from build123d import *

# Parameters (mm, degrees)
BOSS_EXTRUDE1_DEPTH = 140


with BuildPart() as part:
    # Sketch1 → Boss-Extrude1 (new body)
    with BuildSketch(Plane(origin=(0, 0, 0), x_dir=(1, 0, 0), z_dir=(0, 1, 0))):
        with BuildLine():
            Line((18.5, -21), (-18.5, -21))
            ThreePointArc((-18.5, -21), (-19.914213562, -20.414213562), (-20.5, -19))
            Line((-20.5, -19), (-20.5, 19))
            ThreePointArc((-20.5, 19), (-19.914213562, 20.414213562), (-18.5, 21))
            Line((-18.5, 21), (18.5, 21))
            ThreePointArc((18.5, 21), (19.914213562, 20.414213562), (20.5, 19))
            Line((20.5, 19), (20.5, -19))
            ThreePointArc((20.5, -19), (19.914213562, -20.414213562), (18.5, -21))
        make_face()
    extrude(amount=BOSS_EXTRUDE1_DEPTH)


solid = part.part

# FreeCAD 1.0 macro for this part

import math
import FreeCAD as App
import Part
import Sketcher

V = App.Vector

doc = App.newDocument("Part")
params = doc.addObject("Spreadsheet::Sheet", "Params")
for row, (alias, value) in enumerate([
    ("sketch1_radius", "2 mm"),
    ("sketch1_width", "37 mm"),
    ("sketch1_height", "38 mm"),
    ("pad1_length", "140 mm"),
], start=1):
    params.set(f"A{row}", alias)
    params.set(f"B{row}", "=" + value)
    params.setAlias(f"B{row}", alias)

body = doc.addObject("PartDesign::Body", "Body")

# Sketch on XZ plane
sketch1 = doc.addObject("Sketcher::SketchObject", "Sketch")
body.addObject(sketch1)
sketch1.AttachmentSupport = (doc.XZ_Plane, [""])
sketch1.MapMode = "FlatFace"
sketch1.addGeometry([
    Part.LineSegment(V(-18.5, 21, 0), V(18.5, 21, 0)),  # 0
    Part.ArcOfCircle(Part.Circle(V(18.5, 19, 0), V(0, 0, 1), 2), math.radians(0), math.radians(90)),  # 1
    Part.LineSegment(V(20.5, 19, 0), V(20.5, -19, 0)),  # 2
    Part.ArcOfCircle(Part.Circle(V(18.5, -19, 0), V(0, 0, 1), 2), math.radians(-90), math.radians(0)),  # 3
    Part.LineSegment(V(18.5, -21, 0), V(-18.5, -21, 0)),  # 4
    Part.ArcOfCircle(Part.Circle(V(-18.5, -19, 0), V(0, 0, 1), 2), math.radians(-180), math.radians(-90)),  # 5
    Part.LineSegment(V(-20.5, -19, 0), V(-20.5, 19, 0)),  # 6
    Part.ArcOfCircle(Part.Circle(V(-18.5, 19, 0), V(0, 0, 1), 2), math.radians(90), math.radians(180)),  # 7
], False)
sketch1.addConstraint([
    Sketcher.Constraint("Tangent", 0, 2, 1, 2),
    Sketcher.Constraint("Tangent", 1, 1, 2, 1),
    Sketcher.Constraint("Tangent", 2, 2, 3, 2),
    Sketcher.Constraint("Tangent", 3, 1, 4, 1),
    Sketcher.Constraint("Tangent", 4, 2, 5, 2),
    Sketcher.Constraint("Tangent", 5, 1, 6, 1),
    Sketcher.Constraint("Tangent", 6, 2, 7, 2),
    Sketcher.Constraint("Tangent", 7, 1, 0, 1),
    Sketcher.Constraint("Horizontal", 0),
    Sketcher.Constraint("Vertical", 2),
    Sketcher.Constraint("Horizontal", 4),
    Sketcher.Constraint("Vertical", 6),
    Sketcher.Constraint("Equal", 1, 3),
    Sketcher.Constraint("Equal", 3, 5),
    Sketcher.Constraint("Equal", 5, 7),
    Sketcher.Constraint("Symmetric", 1, 3, 5, 3, -1, 1),
    Sketcher.Constraint("Radius", 1, 2.0),
    Sketcher.Constraint("DistanceX", 0, 1, 0, 2, 37.0),
    Sketcher.Constraint("DistanceY", 2, 2, 2, 1, 38.0),
])
sketch1.setExpression("Constraints[16]", "Params.sketch1_radius")
sketch1.setExpression("Constraints[17]", "Params.sketch1_width")
sketch1.setExpression("Constraints[18]", "Params.sketch1_height")
pad1 = doc.addObject("PartDesign::Pad", "Pad")
body.addObject(pad1)
pad1.Profile = sketch1
pad1.setExpression("Length", "Params.pad1_length")
pad1.Reversed = True

doc.recompute()
